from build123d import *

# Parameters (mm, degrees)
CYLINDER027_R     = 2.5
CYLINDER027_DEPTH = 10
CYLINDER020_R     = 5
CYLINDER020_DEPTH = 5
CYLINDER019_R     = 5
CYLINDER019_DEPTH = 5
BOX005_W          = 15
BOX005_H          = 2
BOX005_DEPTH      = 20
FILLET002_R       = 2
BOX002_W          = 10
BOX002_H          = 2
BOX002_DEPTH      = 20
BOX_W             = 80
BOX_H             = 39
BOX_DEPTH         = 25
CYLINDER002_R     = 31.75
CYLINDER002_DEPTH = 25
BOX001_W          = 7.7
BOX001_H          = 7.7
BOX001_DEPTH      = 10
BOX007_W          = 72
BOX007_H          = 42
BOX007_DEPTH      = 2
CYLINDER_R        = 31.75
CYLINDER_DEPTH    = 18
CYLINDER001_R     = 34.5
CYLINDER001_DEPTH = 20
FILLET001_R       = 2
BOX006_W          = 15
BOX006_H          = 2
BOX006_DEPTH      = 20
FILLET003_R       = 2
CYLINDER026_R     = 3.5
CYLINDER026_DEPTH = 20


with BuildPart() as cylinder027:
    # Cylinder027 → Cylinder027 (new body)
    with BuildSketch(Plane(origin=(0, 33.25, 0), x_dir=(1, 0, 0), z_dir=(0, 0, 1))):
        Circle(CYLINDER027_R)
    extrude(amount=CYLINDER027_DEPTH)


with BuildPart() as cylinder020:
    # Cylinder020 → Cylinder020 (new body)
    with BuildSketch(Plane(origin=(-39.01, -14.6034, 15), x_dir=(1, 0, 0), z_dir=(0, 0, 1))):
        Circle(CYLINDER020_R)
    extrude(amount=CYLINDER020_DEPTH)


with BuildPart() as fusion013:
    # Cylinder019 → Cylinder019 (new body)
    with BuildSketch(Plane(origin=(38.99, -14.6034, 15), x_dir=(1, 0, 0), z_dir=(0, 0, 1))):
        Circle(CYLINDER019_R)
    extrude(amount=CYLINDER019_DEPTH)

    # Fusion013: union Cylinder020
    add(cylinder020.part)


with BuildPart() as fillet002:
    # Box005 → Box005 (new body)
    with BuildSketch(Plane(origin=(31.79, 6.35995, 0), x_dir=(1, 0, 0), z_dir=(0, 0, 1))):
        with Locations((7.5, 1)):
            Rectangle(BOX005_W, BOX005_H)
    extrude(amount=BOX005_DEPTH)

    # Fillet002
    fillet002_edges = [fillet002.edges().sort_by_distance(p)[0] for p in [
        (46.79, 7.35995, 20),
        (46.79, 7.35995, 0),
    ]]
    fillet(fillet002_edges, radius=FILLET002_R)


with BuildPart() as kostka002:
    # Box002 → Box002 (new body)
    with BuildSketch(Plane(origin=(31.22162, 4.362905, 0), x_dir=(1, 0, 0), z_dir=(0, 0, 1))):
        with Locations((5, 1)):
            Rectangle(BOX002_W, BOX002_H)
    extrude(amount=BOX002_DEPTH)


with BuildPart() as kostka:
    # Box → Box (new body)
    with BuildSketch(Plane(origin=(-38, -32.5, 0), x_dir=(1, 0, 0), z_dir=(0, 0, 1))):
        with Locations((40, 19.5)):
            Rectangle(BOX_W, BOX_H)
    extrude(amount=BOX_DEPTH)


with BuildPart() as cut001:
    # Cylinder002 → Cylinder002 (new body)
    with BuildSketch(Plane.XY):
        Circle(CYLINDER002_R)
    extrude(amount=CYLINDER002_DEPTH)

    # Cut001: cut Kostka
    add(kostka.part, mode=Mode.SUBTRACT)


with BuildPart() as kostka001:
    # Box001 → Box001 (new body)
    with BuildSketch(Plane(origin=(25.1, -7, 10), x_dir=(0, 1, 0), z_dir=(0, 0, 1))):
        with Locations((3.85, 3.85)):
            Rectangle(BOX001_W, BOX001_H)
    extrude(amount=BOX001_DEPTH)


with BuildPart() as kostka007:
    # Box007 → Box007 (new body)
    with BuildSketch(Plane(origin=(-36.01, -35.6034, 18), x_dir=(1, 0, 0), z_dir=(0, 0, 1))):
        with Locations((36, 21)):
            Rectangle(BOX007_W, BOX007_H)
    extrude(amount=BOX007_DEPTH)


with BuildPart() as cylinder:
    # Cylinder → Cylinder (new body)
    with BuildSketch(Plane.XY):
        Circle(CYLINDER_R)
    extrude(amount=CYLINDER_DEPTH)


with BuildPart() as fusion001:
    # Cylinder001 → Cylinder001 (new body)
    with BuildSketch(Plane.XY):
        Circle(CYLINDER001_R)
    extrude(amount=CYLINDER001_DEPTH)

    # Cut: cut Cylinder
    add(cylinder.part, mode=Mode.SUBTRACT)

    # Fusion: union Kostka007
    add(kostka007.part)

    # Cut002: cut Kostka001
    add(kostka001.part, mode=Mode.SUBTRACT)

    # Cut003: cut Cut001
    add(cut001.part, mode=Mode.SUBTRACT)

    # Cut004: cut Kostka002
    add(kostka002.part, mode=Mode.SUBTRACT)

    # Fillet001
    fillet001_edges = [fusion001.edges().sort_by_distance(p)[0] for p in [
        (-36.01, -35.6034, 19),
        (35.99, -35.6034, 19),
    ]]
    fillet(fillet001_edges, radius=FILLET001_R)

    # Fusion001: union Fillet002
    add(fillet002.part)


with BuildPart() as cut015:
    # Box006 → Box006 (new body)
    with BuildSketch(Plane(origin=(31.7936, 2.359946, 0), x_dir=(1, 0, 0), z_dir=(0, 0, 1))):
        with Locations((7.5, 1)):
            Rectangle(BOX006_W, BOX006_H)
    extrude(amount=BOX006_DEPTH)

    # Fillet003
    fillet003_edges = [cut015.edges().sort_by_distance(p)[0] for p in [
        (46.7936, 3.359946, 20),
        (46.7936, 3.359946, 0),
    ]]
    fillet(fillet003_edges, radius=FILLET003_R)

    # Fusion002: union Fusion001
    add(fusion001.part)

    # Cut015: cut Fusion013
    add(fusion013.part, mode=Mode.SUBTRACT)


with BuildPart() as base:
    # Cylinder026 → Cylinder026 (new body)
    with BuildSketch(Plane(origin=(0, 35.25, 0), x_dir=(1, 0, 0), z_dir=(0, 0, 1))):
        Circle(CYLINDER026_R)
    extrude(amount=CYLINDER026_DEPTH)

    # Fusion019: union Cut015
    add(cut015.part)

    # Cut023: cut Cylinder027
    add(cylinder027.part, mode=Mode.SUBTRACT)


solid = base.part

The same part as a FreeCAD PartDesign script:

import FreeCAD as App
import Part
import Sketcher
from FreeCAD import Vector


def edges_at(feature, points):
    """Names of the edges that pass closest to the given points."""
    edges = feature.Shape.Edges
    near = lambda p: min(range(len(edges)), key=lambda i: edges[i].distToShape(Part.Vertex(*p))[0])
    return sorted({f"Edge{near(p) + 1}" for p in points})

doc = App.newDocument("Part")
params = doc.addObject("Spreadsheet::Sheet", "Params")
for row, (alias, value) in enumerate([
    ("sketch1_diameter", "5 mm"),
    ("pad1_length", "10 mm"),
    ("sketch2_diameter", "10 mm"),
    ("pad2_length", "5 mm"),
    ("sketch3_diameter", "10 mm"),
    ("pad3_length", "5 mm"),
    ("sketch4_width", "15 mm"),
    ("sketch4_height", "2 mm"),
    ("pad4_length", "20 mm"),
    ("fillet_radius", "2 mm"),
    ("sketch5_width", "10 mm"),
    ("sketch5_height", "2 mm"),
    ("pad5_length", "20 mm"),
    ("sketch6_width", "80 mm"),
    ("sketch6_height", "39 mm"),
    ("pad6_length", "25 mm"),
    ("sketch7_diameter", "63.5 mm"),
    ("pad7_length", "25 mm"),
    ("sketch8_width", "7.7 mm"),
    ("pad8_length", "10 mm"),
    ("sketch9_width", "72 mm"),
    ("sketch9_height", "42 mm"),
    ("pad9_length", "2 mm"),
    ("sketch10_diameter", "63.5 mm"),
    ("pad10_length", "18 mm"),
    ("sketch11_diameter", "69 mm"),
    ("pad11_length", "20 mm"),
    ("fillet2_radius", "2 mm"),
    ("sketch12_width", "15 mm"),
    ("sketch12_height", "2 mm"),
    ("pad12_length", "20 mm"),
    ("fillet3_radius", "2 mm"),
    ("sketch13_diameter", "7 mm"),
    ("pad13_length", "20 mm"),
], start=1):
    params.set(f"A{row}", alias)
    params.set(f"B{row}", "=" + value)
    params.setAlias(f"B{row}", alias)

body = doc.addObject("PartDesign::Body", "Body")

# Sketch on XY plane
sketch1 = body.newObject("Sketcher::SketchObject", "Sketch")
sketch1.AttachmentSupport = (doc.getObject("XY_Plane"), [""])
sketch1.MapMode = "FlatFace"
sketch1.addGeometry(Part.Circle(Vector(0, 33.25, 0), Vector(0, 0, 1), 2.5), False)
sketch1.addConstraint(Sketcher.Constraint("PointOnObject", 0, 3, -2))
sketch1.addConstraint(Sketcher.Constraint("Diameter", 0, 5.0))
sketch1.addConstraint(Sketcher.Constraint("DistanceY", -1, 1, 0, 3, 33.25))
sketch1.setExpression("Constraints[1]", "Params.sketch1_diameter")
pad1 = body.newObject("PartDesign::Pad", "Pad")
pad1.Profile = sketch1
pad1.setExpression("Length", "Params.pad1_length")
body2 = doc.addObject("PartDesign::Body", "Body001")

# Sketch on XY plane
sketch2 = body2.newObject("Sketcher::SketchObject", "Sketch001")
sketch2.AttachmentSupport = (doc.getObject("XY_Plane001"), [""])
sketch2.MapMode = "FlatFace"
sketch2.AttachmentOffset = App.Placement(Vector(0, 0, 15), App.Rotation())
sketch2.addGeometry(Part.Circle(Vector(-39.01, -14.6034, 0), Vector(0, 0, 1), 5), False)
sketch2.addConstraint(Sketcher.Constraint("Diameter", 0, 10.0))
sketch2.addConstraint(Sketcher.Constraint("DistanceX", 0, 3, -1, 1, 39.01))
sketch2.addConstraint(Sketcher.Constraint("DistanceY", 0, 3, -1, 1, 14.6034))
sketch2.setExpression("Constraints[0]", "Params.sketch2_diameter")
pad2 = body2.newObject("PartDesign::Pad", "Pad001")
pad2.Profile = sketch2
pad2.setExpression("Length", "Params.pad2_length")
body3 = doc.addObject("PartDesign::Body", "Body002")
body3.AllowCompound = True

# Sketch on XY plane
sketch3 = body3.newObject("Sketcher::SketchObject", "Sketch002")
sketch3.AttachmentSupport = (doc.getObject("XY_Plane002"), [""])
sketch3.MapMode = "FlatFace"
sketch3.AttachmentOffset = App.Placement(Vector(0, 0, 15), App.Rotation())
sketch3.addGeometry(Part.Circle(Vector(38.99, -14.6034, 0), Vector(0, 0, 1), 5), False)
sketch3.addConstraint(Sketcher.Constraint("Diameter", 0, 10.0))
sketch3.addConstraint(Sketcher.Constraint("DistanceX", -1, 1, 0, 3, 38.99))
sketch3.addConstraint(Sketcher.Constraint("DistanceY", 0, 3, -1, 1, 14.6034))
sketch3.setExpression("Constraints[0]", "Params.sketch3_diameter")
pad3 = body3.newObject("PartDesign::Pad", "Pad002")
pad3.Profile = sketch3
pad3.setExpression("Length", "Params.pad3_length")
doc.recompute()

boolean = body3.newObject("PartDesign::Boolean", "Boolean")
boolean.Type = "Fuse"
boolean.addObjects([body2])
body4 = doc.addObject("PartDesign::Body", "Body003")

# Sketch on XY plane
sketch4 = body4.newObject("Sketcher::SketchObject", "Sketch003")
sketch4.AttachmentSupport = (doc.getObject("XY_Plane003"), [""])
sketch4.MapMode = "FlatFace"
sketch4.addGeometry(Part.LineSegment(Vector(31.79, 8.35995, 0), Vector(31.79, 6.35995, 0)), False)
sketch4.addGeometry(Part.LineSegment(Vector(31.79, 6.35995, 0), Vector(46.79, 6.35995, 0)), False)
sketch4.addGeometry(Part.LineSegment(Vector(46.79, 6.35995, 0), Vector(46.79, 8.35995, 0)), False)
sketch4.addGeometry(Part.LineSegment(Vector(46.79, 8.35995, 0), Vector(31.79, 8.35995, 0)), False)
sketch4.addConstraint(Sketcher.Constraint("Coincident", 0, 2, 1, 1))
sketch4.addConstraint(Sketcher.Constraint("Coincident", 1, 2, 2, 1))
sketch4.addConstraint(Sketcher.Constraint("Coincident", 2, 2, 3, 1))
sketch4.addConstraint(Sketcher.Constraint("Coincident", 3, 2, 0, 1))
sketch4.addConstraint(Sketcher.Constraint("Vertical", 0))
sketch4.addConstraint(Sketcher.Constraint("Horizontal", 1))
sketch4.addConstraint(Sketcher.Constraint("Vertical", 2))
sketch4.addConstraint(Sketcher.Constraint("Horizontal", 3))
sketch4.addConstraint(Sketcher.Constraint("DistanceX", 1, 1, 1, 2, 15.0))
sketch4.addConstraint(Sketcher.Constraint("DistanceY", 0, 2, 0, 1, 2.0))
sketch4.addConstraint(Sketcher.Constraint("DistanceX", -1, 1, 0, 2, 31.79))
sketch4.addConstraint(Sketcher.Constraint("DistanceY", -1, 1, 0, 2, 6.35995))
sketch4.setExpression("Constraints[8]", "Params.sketch4_width")
sketch4.setExpression("Constraints[9]", "Params.sketch4_height")
pad4 = body4.newObject("PartDesign::Pad", "Pad003")
pad4.Profile = sketch4
pad4.setExpression("Length", "Params.pad4_length")
doc.recompute()

fillet = body4.newObject("PartDesign::Fillet", "Fillet")
fillet.Base = (pad4, edges_at(pad4, [(46.79, 7.36, 20), (46.79, 7.36, 0)]))
fillet.setExpression("Radius", "Params.fillet_radius")
body5 = doc.addObject("PartDesign::Body", "Body004")

# Sketch on XY plane
sketch5 = body5.newObject("Sketcher::SketchObject", "Sketch004")
sketch5.AttachmentSupport = (doc.getObject("XY_Plane004"), [""])
sketch5.MapMode = "FlatFace"
sketch5.addGeometry(Part.LineSegment(Vector(31.22162, 6.362905, 0), Vector(31.22162, 4.362905, 0)), False)
sketch5.addGeometry(Part.LineSegment(Vector(31.22162, 4.362905, 0), Vector(41.22162, 4.362905, 0)), False)
sketch5.addGeometry(Part.LineSegment(Vector(41.22162, 4.362905, 0), Vector(41.22162, 6.362905, 0)), False)
sketch5.addGeometry(Part.LineSegment(Vector(41.22162, 6.362905, 0), Vector(31.22162, 6.362905, 0)), False)
sketch5.addConstraint(Sketcher.Constraint("Coincident", 0, 2, 1, 1))
sketch5.addConstraint(Sketcher.Constraint("Coincident", 1, 2, 2, 1))
sketch5.addConstraint(Sketcher.Constraint("Coincident", 2, 2, 3, 1))
sketch5.addConstraint(Sketcher.Constraint("Coincident", 3, 2, 0, 1))
sketch5.addConstraint(Sketcher.Constraint("Vertical", 0))
sketch5.addConstraint(Sketcher.Constraint("Horizontal", 1))
sketch5.addConstraint(Sketcher.Constraint("Vertical", 2))
sketch5.addConstraint(Sketcher.Constraint("Horizontal", 3))
sketch5.addConstraint(Sketcher.Constraint("DistanceX", 1, 1, 1, 2, 10.0))
sketch5.addConstraint(Sketcher.Constraint("DistanceY", 0, 2, 0, 1, 2.0))
sketch5.addConstraint(Sketcher.Constraint("DistanceX", -1, 1, 0, 2, 31.22162))
sketch5.addConstraint(Sketcher.Constraint("DistanceY", -1, 1, 0, 2, 4.362905))
sketch5.setExpression("Constraints[8]", "Params.sketch5_width")
sketch5.setExpression("Constraints[9]", "Params.sketch5_height")
pad5 = body5.newObject("PartDesign::Pad", "Pad004")
pad5.Profile = sketch5
pad5.setExpression("Length", "Params.pad5_length")
body6 = doc.addObject("PartDesign::Body", "Body005")

# Sketch on XY plane
sketch6 = body6.newObject("Sketcher::SketchObject", "Sketch005")
sketch6.AttachmentSupport = (doc.getObject("XY_Plane005"), [""])
sketch6.MapMode = "FlatFace"
sketch6.addGeometry(Part.LineSegment(Vector(-38, 6.5, 0), Vector(-38, -32.5, 0)), False)
sketch6.addGeometry(Part.LineSegment(Vector(-38, -32.5, 0), Vector(42, -32.5, 0)), False)
sketch6.addGeometry(Part.LineSegment(Vector(42, -32.5, 0), Vector(42, 6.5, 0)), False)
sketch6.addGeometry(Part.LineSegment(Vector(42, 6.5, 0), Vector(-38, 6.5, 0)), False)
sketch6.addConstraint(Sketcher.Constraint("Coincident", 0, 2, 1, 1))
sketch6.addConstraint(Sketcher.Constraint("Coincident", 1, 2, 2, 1))
sketch6.addConstraint(Sketcher.Constraint("Coincident", 2, 2, 3, 1))
sketch6.addConstraint(Sketcher.Constraint("Coincident", 3, 2, 0, 1))
sketch6.addConstraint(Sketcher.Constraint("Vertical", 0))
sketch6.addConstraint(Sketcher.Constraint("Horizontal", 1))
sketch6.addConstraint(Sketcher.Constraint("Vertical", 2))
sketch6.addConstraint(Sketcher.Constraint("Horizontal", 3))
sketch6.addConstraint(Sketcher.Constraint("DistanceX", 1, 1, 1, 2, 80.0))
sketch6.addConstraint(Sketcher.Constraint("DistanceY", 0, 2, 0, 1, 39.0))
sketch6.addConstraint(Sketcher.Constraint("DistanceX", 0, 2, -1, 1, 38.0))
sketch6.addConstraint(Sketcher.Constraint("DistanceY", 0, 2, -1, 1, 32.5))
sketch6.setExpression("Constraints[8]", "Params.sketch6_width")
sketch6.setExpression("Constraints[9]", "Params.sketch6_height")
pad6 = body6.newObject("PartDesign::Pad", "Pad005")
pad6.Profile = sketch6
pad6.setExpression("Length", "Params.pad6_length")
body7 = doc.addObject("PartDesign::Body", "Body006")

# Sketch on XY plane
sketch7 = body7.newObject("Sketcher::SketchObject", "Sketch006")
sketch7.AttachmentSupport = (doc.getObject("XY_Plane006"), [""])
sketch7.MapMode = "FlatFace"
sketch7.addGeometry(Part.Circle(Vector(0, 0, 0), Vector(0, 0, 1), 31.75), False)
sketch7.addConstraint(Sketcher.Constraint("Coincident", 0, 3, -1, 1))
sketch7.addConstraint(Sketcher.Constraint("Diameter", 0, 63.5))
sketch7.setExpression("Constraints[1]", "Params.sketch7_diameter")
pad7 = body7.newObject("PartDesign::Pad", "Pad006")
pad7.Profile = sketch7
pad7.setExpression("Length", "Params.pad7_length")
doc.recompute()

boolean2 = body7.newObject("PartDesign::Boolean", "Boolean001")
boolean2.Type = "Cut"
boolean2.addObjects([body6])
body8 = doc.addObject("PartDesign::Body", "Body007")

# Sketch on XY plane
sketch8 = body8.newObject("Sketcher::SketchObject", "Sketch007")
sketch8.AttachmentSupport = (doc.getObject("XY_Plane007"), [""])
sketch8.MapMode = "FlatFace"
sketch8.AttachmentOffset = App.Placement(Vector(0, 0, 10), App.Rotation())
sketch8.addGeometry(Part.LineSegment(Vector(17.4, -7, 0), Vector(25.1, -7, 0)), False)
sketch8.addGeometry(Part.LineSegment(Vector(25.1, -7, 0), Vector(25.1, 0.7, 0)), False)
sketch8.addGeometry(Part.LineSegment(Vector(25.1, 0.7, 0), Vector(17.4, 0.7, 0)), False)
sketch8.addGeometry(Part.LineSegment(Vector(17.4, 0.7, 0), Vector(17.4, -7, 0)), False)
sketch8.addConstraint(Sketcher.Constraint("Coincident", 0, 2, 1, 1))
sketch8.addConstraint(Sketcher.Constraint("Coincident", 1, 2, 2, 1))
sketch8.addConstraint(Sketcher.Constraint("Coincident", 2, 2, 3, 1))
sketch8.addConstraint(Sketcher.Constraint("Coincident", 3, 2, 0, 1))
sketch8.addConstraint(Sketcher.Constraint("Horizontal", 0))
sketch8.addConstraint(Sketcher.Constraint("Vertical", 1))
sketch8.addConstraint(Sketcher.Constraint("Horizontal", 2))
sketch8.addConstraint(Sketcher.Constraint("Vertical", 3))
sketch8.addConstraint(Sketcher.Constraint("Equal", 2, 1))
sketch8.addConstraint(Sketcher.Constraint("DistanceX", 0, 1, 0, 2, 7.7))
sketch8.addConstraint(Sketcher.Constraint("DistanceY", 0, 2, -1, 1, 7.0))
sketch8.addConstraint(Sketcher.Constraint("DistanceX", -1, 1, 0, 2, 25.1))
sketch8.setExpression("Constraints[9]", "Params.sketch8_width")
pad8 = body8.newObject("PartDesign::Pad", "Pad007")
pad8.Profile = sketch8
pad8.setExpression("Length", "Params.pad8_length")
body9 = doc.addObject("PartDesign::Body", "Body008")

# Sketch on XY plane
sketch9 = body9.newObject("Sketcher::SketchObject", "Sketch008")
sketch9.AttachmentSupport = (doc.getObject("XY_Plane008"), [""])
sketch9.MapMode = "FlatFace"
sketch9.AttachmentOffset = App.Placement(Vector(0, 0, 18), App.Rotation())
sketch9.addGeometry(Part.LineSegment(Vector(-36.01, 6.3966, 0), Vector(-36.01, -35.6034, 0)), False)
sketch9.addGeometry(Part.LineSegment(Vector(-36.01, -35.6034, 0), Vector(35.99, -35.6034, 0)), False)
sketch9.addGeometry(Part.LineSegment(Vector(35.99, -35.6034, 0), Vector(35.99, 6.3966, 0)), False)
sketch9.addGeometry(Part.LineSegment(Vector(35.99, 6.3966, 0), Vector(-36.01, 6.3966, 0)), False)
sketch9.addConstraint(Sketcher.Constraint("Coincident", 0, 2, 1, 1))
sketch9.addConstraint(Sketcher.Constraint("Coincident", 1, 2, 2, 1))
sketch9.addConstraint(Sketcher.Constraint("Coincident", 2, 2, 3, 1))
sketch9.addConstraint(Sketcher.Constraint("Coincident", 3, 2, 0, 1))
sketch9.addConstraint(Sketcher.Constraint("Vertical", 0))
sketch9.addConstraint(Sketcher.Constraint("Horizontal", 1))
sketch9.addConstraint(Sketcher.Constraint("Vertical", 2))
sketch9.addConstraint(Sketcher.Constraint("Horizontal", 3))
sketch9.addConstraint(Sketcher.Constraint("DistanceX", 1, 1, 1, 2, 72.0))
sketch9.addConstraint(Sketcher.Constraint("DistanceY", 0, 2, 0, 1, 42.0))
sketch9.addConstraint(Sketcher.Constraint("DistanceX", 0, 2, -1, 1, 36.01))
sketch9.addConstraint(Sketcher.Constraint("DistanceY", 0, 2, -1, 1, 35.6034))
sketch9.setExpression("Constraints[8]", "Params.sketch9_width")
sketch9.setExpression("Constraints[9]", "Params.sketch9_height")
pad9 = body9.newObject("PartDesign::Pad", "Pad008")
pad9.Profile = sketch9
pad9.setExpression("Length", "Params.pad9_length")
body10 = doc.addObject("PartDesign::Body", "Body009")

# Sketch on XY plane
sketch10 = body10.newObject("Sketcher::SketchObject", "Sketch009")
sketch10.AttachmentSupport = (doc.getObject("XY_Plane009"), [""])
sketch10.MapMode = "FlatFace"
sketch10.addGeometry(Part.Circle(Vector(0, 0, 0), Vector(0, 0, 1), 31.75), False)
sketch10.addConstraint(Sketcher.Constraint("Coincident", 0, 3, -1, 1))
sketch10.addConstraint(Sketcher.Constraint("Diameter", 0, 63.5))
sketch10.setExpression("Constraints[1]", "Params.sketch10_diameter")
pad10 = body10.newObject("PartDesign::Pad", "Pad009")
pad10.Profile = sketch10
pad10.setExpression("Length", "Params.pad10_length")
body11 = doc.addObject("PartDesign::Body", "Body010")

# Sketch on XY plane
sketch11 = body11.newObject("Sketcher::SketchObject", "Sketch010")
sketch11.AttachmentSupport = (doc.getObject("XY_Plane010"), [""])
sketch11.MapMode = "FlatFace"
sketch11.addGeometry(Part.Circle(Vector(0, 0, 0), Vector(0, 0, 1), 34.5), False)
sketch11.addConstraint(Sketcher.Constraint("Coincident", 0, 3, -1, 1))
sketch11.addConstraint(Sketcher.Constraint("Diameter", 0, 69.0))
sketch11.setExpression("Constraints[1]", "Params.sketch11_diameter")
pad11 = body11.newObject("PartDesign::Pad", "Pad010")
pad11.Profile = sketch11
pad11.setExpression("Length", "Params.pad11_length")
doc.recompute()

boolean3 = body11.newObject("PartDesign::Boolean", "Boolean002")
boolean3.Type = "Cut"
boolean3.addObjects([body10])
doc.recompute()

boolean4 = body11.newObject("PartDesign::Boolean", "Boolean003")
boolean4.Type = "Fuse"
boolean4.addObjects([body9])
doc.recompute()

boolean5 = body11.newObject("PartDesign::Boolean", "Boolean004")
boolean5.Type = "Cut"
boolean5.addObjects([body8])
doc.recompute()

boolean6 = body11.newObject("PartDesign::Boolean", "Boolean005")
boolean6.Type = "Cut"
boolean6.addObjects([body7])
doc.recompute()

boolean7 = body11.newObject("PartDesign::Boolean", "Boolean006")
boolean7.Type = "Cut"
boolean7.addObjects([body5])
doc.recompute()

fillet2 = body11.newObject("PartDesign::Fillet", "Fillet001")
fillet2.Base = (boolean7, edges_at(boolean7, [(-36.01, -35.603, 19), (35.99, -35.603, 19)]))
fillet2.setExpression("Radius", "Params.fillet2_radius")
doc.recompute()

boolean8 = body11.newObject("PartDesign::Boolean", "Boolean007")
boolean8.Type = "Fuse"
boolean8.addObjects([body4])
body12 = doc.addObject("PartDesign::Body", "Body011")

# Sketch on XY plane
sketch12 = body12.newObject("Sketcher::SketchObject", "Sketch011")
sketch12.AttachmentSupport = (doc.getObject("XY_Plane011"), [""])
sketch12.MapMode = "FlatFace"
sketch12.addGeometry(Part.LineSegment(Vector(31.7936, 4.359946, 0), Vector(31.7936, 2.359946, 0)), False)
sketch12.addGeometry(Part.LineSegment(Vector(31.7936, 2.359946, 0), Vector(46.7936, 2.359946, 0)), False)
sketch12.addGeometry(Part.LineSegment(Vector(46.7936, 2.359946, 0), Vector(46.7936, 4.359946, 0)), False)
sketch12.addGeometry(Part.LineSegment(Vector(46.7936, 4.359946, 0), Vector(31.7936, 4.359946, 0)), False)
sketch12.addConstraint(Sketcher.Constraint("Coincident", 0, 2, 1, 1))
sketch12.addConstraint(Sketcher.Constraint("Coincident", 1, 2, 2, 1))
sketch12.addConstraint(Sketcher.Constraint("Coincident", 2, 2, 3, 1))
sketch12.addConstraint(Sketcher.Constraint("Coincident", 3, 2, 0, 1))
sketch12.addConstraint(Sketcher.Constraint("Vertical", 0))
sketch12.addConstraint(Sketcher.Constraint("Horizontal", 1))
sketch12.addConstraint(Sketcher.Constraint("Vertical", 2))
sketch12.addConstraint(Sketcher.Constraint("Horizontal", 3))
sketch12.addConstraint(Sketcher.Constraint("DistanceX", 1, 1, 1, 2, 15.0))
sketch12.addConstraint(Sketcher.Constraint("DistanceY", 0, 2, 0, 1, 2.0))
sketch12.addConstraint(Sketcher.Constraint("DistanceX", -1, 1, 0, 2, 31.7936))
sketch12.addConstraint(Sketcher.Constraint("DistanceY", -1, 1, 0, 2, 2.359946))
sketch12.setExpression("Constraints[8]", "Params.sketch12_width")
sketch12.setExpression("Constraints[9]", "Params.sketch12_height")
pad12 = body12.newObject("PartDesign::Pad", "Pad011")
pad12.Profile = sketch12
pad12.setExpression("Length", "Params.pad12_length")
doc.recompute()

fillet3 = body12.newObject("PartDesign::Fillet", "Fillet002")
fillet3.Base = (pad12, edges_at(pad12, [(46.794, 3.36, 20), (46.794, 3.36, 0)]))
fillet3.setExpression("Radius", "Params.fillet3_radius")
doc.recompute()

boolean9 = body12.newObject("PartDesign::Boolean", "Boolean008")
boolean9.Type = "Fuse"
boolean9.addObjects([body11])
doc.recompute()

boolean10 = body12.newObject("PartDesign::Boolean", "Boolean009")
boolean10.Type = "Cut"
boolean10.addObjects([body3])
body13 = doc.addObject("PartDesign::Body", "Body012")

# Sketch on XY plane
sketch13 = body13.newObject("Sketcher::SketchObject", "Sketch012")
sketch13.AttachmentSupport = (doc.getObject("XY_Plane012"), [""])
sketch13.MapMode = "FlatFace"
sketch13.addGeometry(Part.Circle(Vector(0, 35.25, 0), Vector(0, 0, 1), 3.5), False)
sketch13.addConstraint(Sketcher.Constraint("PointOnObject", 0, 3, -2))
sketch13.addConstraint(Sketcher.Constraint("Diameter", 0, 7.0))
sketch13.addConstraint(Sketcher.Constraint("DistanceY", -1, 1, 0, 3, 35.25))
sketch13.setExpression("Constraints[1]", "Params.sketch13_diameter")
pad13 = body13.newObject("PartDesign::Pad", "Pad012")
pad13.Profile = sketch13
pad13.setExpression("Length", "Params.pad13_length")
doc.recompute()

boolean11 = body13.newObject("PartDesign::Boolean", "Boolean010")
boolean11.Type = "Fuse"
boolean11.addObjects([body12])
doc.recompute()

boolean12 = body13.newObject("PartDesign::Boolean", "Boolean011")
boolean12.Type = "Cut"
boolean12.addObjects([body])

doc.recompute()
